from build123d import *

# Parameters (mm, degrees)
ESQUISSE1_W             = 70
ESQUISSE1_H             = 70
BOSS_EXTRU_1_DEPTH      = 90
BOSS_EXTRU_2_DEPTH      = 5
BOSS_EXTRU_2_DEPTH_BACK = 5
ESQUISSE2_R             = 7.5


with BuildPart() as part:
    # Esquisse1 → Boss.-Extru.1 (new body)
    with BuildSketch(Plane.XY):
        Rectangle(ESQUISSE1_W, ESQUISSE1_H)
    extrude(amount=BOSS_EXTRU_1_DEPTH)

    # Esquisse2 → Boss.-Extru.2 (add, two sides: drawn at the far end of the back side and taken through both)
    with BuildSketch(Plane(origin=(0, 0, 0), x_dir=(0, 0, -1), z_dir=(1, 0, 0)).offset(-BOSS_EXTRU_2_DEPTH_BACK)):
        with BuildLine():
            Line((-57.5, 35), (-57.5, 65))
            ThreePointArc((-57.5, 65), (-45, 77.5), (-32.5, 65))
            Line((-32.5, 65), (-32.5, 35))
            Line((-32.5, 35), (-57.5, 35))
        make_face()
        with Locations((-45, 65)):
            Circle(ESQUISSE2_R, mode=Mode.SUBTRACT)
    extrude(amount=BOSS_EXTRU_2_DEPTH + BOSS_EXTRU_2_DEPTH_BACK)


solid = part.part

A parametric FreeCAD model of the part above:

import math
import FreeCAD as App
import Part
import Sketcher

V = App.Vector


def add_polygon(sketch, points):
    """Adds a closed chain of lines whose ends are joined by coincident constraints."""
    first, n = sketch.GeometryCount, len(points)
    for a, b in zip(points, points[1:] + points[:1]):
        sketch.addGeometry(Part.LineSegment(App.Vector(*a, 0), App.Vector(*b, 0)), False)
    for i in range(n):
        sketch.addConstraint(Sketcher.Constraint("Coincident", first + i, 2, first + (i + 1) % n, 1))

doc = App.newDocument("Part")
params = doc.addObject("Spreadsheet::Sheet", "Params")
for row, (alias, value) in enumerate([
    ("sketch1_width", "70 mm"),
    ("pad1_length", "90 mm"),
    ("sketch2_diameter", "15 mm"),
    ("sketch2_radius", "12.5 mm"),
    ("sketch2_width", "30 mm"),
    ("pad2_length", "5 mm"),
    ("pad2_length2", "5 mm"),
], start=1):
    params.set(f"A{row}", alias)
    params.set(f"B{row}", "=" + value)
    params.setAlias(f"B{row}", alias)

body = doc.addObject("PartDesign::Body", "Body")

sketch1 = body.newObject("Sketcher::SketchObject", "Sketch")
sketch1.AttachmentSupport = (doc.getObject("XY_Plane"), [""])
sketch1.MapMode = "FlatFace"
add_polygon(sketch1, [(-35, 35), (-35, -35), (35, -35), (35, 35)])
sketch1.addConstraint(Sketcher.Constraint("Vertical", 0))
sketch1.addConstraint(Sketcher.Constraint("Horizontal", 1))
sketch1.addConstraint(Sketcher.Constraint("Vertical", 2))
sketch1.addConstraint(Sketcher.Constraint("Horizontal", 3))
sketch1.addConstraint(Sketcher.Constraint("Symmetric", 0, 2, 2, 2, -1, 1))
sketch1.addConstraint(Sketcher.Constraint("Equal", 3, 0))
sketch1.addConstraint(Sketcher.Constraint("DistanceX", 1, 1, 1, 2, 70.0))
sketch1.setExpression("Constraints[10]", "Params.sketch1_width")
pad1 = body.newObject("PartDesign::Pad", "Pad")
pad1.Profile = sketch1
pad1.setExpression("Length", "Params.pad1_length")

sketch2 = body.newObject("Sketcher::SketchObject", "Sketch001")
sketch2.AttachmentSupport = (doc.getObject("YZ_Plane"), [""])
sketch2.MapMode = "FlatFace"
sketch2.addGeometry(Part.LineSegment(V(65, 58, 0), V(35, 58, 0)), False)
sketch2.addGeometry(Part.LineSegment(V(35, 58, 0), V(35, 32, 0)), False)
sketch2.addGeometry(Part.LineSegment(V(35, 32, 0), V(65, 32, 0)), False)
sketch2.addGeometry(Part.ArcOfCircle(Part.Circle(V(65, 45, 0), V(0, 0, 1), 12), math.radians(-90), math.radians(90)), False)
sketch2.addGeometry(Part.Circle(V(65, 45, 0), V(0, 0, 1), 8), False)
sketch2.addConstraint(Sketcher.Constraint("Coincident", 0, 2, 1, 1))
sketch2.addConstraint(Sketcher.Constraint("Coincident", 1, 2, 2, 1))
sketch2.addConstraint(Sketcher.Constraint("Tangent", 2, 2, 3, 1))
sketch2.addConstraint(Sketcher.Constraint("Tangent", 3, 2, 0, 1))
sketch2.addConstraint(Sketcher.Constraint("Horizontal", 0))
sketch2.addConstraint(Sketcher.Constraint("Vertical", 1))
sketch2.addConstraint(Sketcher.Constraint("Horizontal", 2))
sketch2.addConstraint(Sketcher.Constraint("Coincident", 4, 3, 3, 3))
sketch2.addConstraint(Sketcher.Constraint("Diameter", 4, 15.0))
sketch2.addConstraint(Sketcher.Constraint("Radius", 3, 12.5))
sketch2.addConstraint(Sketcher.Constraint("DistanceX", 0, 2, 0, 1, 30.0))
sketch2.addConstraint(Sketcher.Constraint("DistanceX", -1, 1, 3, 3, 65.0))
sketch2.addConstraint(Sketcher.Constraint("DistanceY", -1, 1, 3, 3, 45.0))
sketch2.setExpression("Constraints[8]", "Params.sketch2_diameter")
sketch2.setExpression("Constraints[9]", "Params.sketch2_radius")
sketch2.setExpression("Constraints[10]", "Params.sketch2_width")
pad2 = body.newObject("PartDesign::Pad", "Pad001")
pad2.Profile = sketch2
pad2.Type = "TwoLengths"
pad2.setExpression("Length", "Params.pad2_length")
pad2.setExpression("Length2", "Params.pad2_length2")

doc.recompute()
